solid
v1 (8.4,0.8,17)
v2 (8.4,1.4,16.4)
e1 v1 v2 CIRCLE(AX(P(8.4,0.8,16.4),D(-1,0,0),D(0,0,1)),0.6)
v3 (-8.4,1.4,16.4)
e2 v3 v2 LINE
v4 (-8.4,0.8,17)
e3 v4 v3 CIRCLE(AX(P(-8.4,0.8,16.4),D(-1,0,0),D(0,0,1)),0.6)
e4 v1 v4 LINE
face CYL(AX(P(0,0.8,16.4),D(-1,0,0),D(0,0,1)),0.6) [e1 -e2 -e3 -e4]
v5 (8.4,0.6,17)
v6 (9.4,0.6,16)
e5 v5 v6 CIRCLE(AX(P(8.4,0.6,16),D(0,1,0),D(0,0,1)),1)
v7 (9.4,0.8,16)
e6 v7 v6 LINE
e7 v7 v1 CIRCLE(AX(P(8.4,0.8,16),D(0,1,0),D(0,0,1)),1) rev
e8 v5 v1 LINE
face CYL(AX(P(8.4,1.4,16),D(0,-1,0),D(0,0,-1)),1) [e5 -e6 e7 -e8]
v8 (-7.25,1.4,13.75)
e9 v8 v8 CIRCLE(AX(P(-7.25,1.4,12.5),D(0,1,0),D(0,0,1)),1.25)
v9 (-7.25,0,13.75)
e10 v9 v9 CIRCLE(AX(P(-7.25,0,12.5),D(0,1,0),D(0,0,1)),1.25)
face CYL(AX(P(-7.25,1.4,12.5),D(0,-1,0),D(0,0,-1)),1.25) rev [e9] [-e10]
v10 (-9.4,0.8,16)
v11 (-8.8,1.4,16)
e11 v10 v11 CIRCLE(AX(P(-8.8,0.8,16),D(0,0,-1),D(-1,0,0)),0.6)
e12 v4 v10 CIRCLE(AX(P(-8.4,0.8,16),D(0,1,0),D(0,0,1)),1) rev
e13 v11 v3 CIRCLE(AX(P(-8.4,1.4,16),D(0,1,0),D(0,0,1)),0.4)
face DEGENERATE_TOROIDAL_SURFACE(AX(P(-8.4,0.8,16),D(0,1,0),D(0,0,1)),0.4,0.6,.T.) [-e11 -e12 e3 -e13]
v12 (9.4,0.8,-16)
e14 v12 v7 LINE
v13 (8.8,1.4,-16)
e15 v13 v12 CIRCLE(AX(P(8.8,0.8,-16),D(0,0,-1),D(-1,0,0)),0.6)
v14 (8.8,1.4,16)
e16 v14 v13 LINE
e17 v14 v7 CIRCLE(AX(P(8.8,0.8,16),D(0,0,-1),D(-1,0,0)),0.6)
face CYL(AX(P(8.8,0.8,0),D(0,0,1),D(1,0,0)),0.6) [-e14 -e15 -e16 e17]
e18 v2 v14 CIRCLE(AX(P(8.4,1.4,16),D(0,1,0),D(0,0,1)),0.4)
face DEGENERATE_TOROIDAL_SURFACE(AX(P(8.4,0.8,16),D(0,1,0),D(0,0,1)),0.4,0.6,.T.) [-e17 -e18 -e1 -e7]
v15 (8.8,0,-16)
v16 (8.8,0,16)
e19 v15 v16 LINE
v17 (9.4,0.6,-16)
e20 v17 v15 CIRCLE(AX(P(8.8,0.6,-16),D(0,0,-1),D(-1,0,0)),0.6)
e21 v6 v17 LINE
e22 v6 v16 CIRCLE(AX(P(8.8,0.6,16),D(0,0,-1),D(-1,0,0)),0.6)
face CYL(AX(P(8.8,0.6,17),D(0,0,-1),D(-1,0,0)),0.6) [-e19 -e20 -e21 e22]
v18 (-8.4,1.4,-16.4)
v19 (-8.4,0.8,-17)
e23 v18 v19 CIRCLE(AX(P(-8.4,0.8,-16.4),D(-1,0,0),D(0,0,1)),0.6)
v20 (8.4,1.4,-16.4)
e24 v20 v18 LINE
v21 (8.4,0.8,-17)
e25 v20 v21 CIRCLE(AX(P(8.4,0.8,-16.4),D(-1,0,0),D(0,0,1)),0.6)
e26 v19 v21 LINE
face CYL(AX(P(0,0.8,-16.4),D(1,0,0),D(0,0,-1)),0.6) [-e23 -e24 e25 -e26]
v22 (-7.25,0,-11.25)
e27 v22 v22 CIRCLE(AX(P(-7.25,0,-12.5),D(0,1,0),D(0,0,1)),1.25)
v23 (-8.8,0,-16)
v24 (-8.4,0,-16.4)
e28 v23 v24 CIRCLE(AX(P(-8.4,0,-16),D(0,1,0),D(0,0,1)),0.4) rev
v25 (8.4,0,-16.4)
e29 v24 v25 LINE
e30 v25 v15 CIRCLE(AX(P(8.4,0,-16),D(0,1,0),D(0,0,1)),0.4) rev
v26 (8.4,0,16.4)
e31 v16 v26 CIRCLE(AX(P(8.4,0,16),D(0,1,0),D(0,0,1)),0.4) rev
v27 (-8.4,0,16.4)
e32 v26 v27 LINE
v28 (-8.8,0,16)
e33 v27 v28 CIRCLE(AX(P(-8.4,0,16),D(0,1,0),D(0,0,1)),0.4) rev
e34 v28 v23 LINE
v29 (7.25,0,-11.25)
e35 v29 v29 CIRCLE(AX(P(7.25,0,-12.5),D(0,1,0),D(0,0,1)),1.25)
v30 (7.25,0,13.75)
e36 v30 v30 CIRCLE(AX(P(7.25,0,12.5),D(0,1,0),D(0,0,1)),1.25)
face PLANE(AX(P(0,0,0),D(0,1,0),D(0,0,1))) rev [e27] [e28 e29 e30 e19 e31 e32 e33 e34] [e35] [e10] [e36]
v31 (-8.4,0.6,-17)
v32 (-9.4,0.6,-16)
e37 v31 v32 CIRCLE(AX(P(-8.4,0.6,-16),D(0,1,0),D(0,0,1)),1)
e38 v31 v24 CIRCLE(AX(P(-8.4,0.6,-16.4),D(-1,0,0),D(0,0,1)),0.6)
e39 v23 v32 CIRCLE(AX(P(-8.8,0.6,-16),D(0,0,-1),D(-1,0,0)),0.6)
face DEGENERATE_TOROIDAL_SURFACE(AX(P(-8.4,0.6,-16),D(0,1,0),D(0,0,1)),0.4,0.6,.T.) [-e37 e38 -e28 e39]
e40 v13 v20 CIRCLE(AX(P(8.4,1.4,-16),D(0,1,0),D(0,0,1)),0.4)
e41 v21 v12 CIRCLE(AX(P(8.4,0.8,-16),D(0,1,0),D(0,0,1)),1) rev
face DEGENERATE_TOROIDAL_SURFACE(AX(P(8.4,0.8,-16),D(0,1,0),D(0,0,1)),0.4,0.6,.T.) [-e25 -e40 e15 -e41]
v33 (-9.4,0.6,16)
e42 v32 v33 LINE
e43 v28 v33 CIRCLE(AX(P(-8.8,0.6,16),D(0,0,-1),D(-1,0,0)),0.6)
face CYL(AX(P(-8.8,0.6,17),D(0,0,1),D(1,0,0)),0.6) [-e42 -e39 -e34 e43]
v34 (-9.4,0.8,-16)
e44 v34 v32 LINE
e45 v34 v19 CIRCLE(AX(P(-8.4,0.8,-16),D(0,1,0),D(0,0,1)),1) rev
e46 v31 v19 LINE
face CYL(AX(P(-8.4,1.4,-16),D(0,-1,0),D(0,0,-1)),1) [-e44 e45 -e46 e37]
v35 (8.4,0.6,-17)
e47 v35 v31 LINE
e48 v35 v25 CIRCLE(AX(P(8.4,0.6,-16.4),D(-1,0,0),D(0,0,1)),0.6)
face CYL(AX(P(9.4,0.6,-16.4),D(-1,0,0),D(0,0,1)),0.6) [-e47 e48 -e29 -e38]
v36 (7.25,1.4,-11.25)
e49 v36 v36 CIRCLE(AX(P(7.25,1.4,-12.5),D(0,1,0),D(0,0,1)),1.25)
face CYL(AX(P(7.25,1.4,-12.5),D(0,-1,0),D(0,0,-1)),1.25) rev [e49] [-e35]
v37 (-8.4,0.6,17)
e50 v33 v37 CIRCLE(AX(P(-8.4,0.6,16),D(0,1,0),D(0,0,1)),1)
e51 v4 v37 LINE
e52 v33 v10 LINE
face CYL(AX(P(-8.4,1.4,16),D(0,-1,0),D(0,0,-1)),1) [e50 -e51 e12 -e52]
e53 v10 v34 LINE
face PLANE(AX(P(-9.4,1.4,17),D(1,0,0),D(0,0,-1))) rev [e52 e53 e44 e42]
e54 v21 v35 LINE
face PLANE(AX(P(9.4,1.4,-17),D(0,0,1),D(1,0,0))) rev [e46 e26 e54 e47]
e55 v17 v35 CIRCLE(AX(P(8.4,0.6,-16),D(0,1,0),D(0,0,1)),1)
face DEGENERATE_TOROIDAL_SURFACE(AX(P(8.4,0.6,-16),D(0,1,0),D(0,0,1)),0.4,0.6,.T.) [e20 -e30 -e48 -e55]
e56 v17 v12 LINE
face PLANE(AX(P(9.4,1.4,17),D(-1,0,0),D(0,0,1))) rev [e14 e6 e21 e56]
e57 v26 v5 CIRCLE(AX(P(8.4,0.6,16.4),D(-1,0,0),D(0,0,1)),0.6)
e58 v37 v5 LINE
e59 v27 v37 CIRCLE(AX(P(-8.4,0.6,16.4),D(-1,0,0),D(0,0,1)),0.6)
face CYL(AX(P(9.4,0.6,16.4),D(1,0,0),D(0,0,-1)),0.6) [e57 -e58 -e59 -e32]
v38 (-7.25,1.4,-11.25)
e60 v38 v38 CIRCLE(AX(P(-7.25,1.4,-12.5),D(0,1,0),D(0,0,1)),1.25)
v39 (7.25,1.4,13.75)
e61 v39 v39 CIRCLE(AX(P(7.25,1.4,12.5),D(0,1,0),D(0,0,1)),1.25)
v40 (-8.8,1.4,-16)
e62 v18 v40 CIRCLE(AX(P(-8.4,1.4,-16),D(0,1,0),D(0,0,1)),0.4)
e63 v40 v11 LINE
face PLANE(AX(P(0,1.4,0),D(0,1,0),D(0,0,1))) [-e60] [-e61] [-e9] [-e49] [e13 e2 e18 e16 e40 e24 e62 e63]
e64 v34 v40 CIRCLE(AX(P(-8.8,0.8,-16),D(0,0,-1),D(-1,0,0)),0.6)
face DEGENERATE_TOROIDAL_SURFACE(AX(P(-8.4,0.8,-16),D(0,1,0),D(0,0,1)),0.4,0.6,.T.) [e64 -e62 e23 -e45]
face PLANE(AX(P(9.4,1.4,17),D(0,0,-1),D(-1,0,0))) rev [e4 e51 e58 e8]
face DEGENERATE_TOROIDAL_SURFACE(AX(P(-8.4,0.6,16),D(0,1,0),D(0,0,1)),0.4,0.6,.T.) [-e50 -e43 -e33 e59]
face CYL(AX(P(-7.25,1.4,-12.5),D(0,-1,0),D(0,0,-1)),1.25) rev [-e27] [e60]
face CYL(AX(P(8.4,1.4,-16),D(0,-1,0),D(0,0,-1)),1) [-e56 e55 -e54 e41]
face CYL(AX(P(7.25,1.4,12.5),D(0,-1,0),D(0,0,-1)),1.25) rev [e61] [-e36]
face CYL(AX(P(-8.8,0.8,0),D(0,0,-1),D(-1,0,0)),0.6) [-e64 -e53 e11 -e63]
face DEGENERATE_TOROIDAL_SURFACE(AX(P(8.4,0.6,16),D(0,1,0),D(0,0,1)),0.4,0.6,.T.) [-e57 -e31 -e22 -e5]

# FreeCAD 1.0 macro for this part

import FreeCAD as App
import Part
import Sketcher


def edges_at(feature, points):
    """Names of the edges that pass closest to the given points."""
    edges = feature.Shape.Edges
    near = lambda p: min(range(len(edges)), key=lambda i: edges[i].distToShape(Part.Vertex(*p))[0])
    return sorted({f"Edge{near(p) + 1}" for p in points})


def add_polygon(sketch, points):
    """Adds a closed chain of lines whose ends are joined by coincident constraints."""
    first, n = sketch.GeometryCount, len(points)
    for a, b in zip(points, points[1:] + points[:1]):
        sketch.addGeometry(Part.LineSegment(App.Vector(*a, 0), App.Vector(*b, 0)), False)
    for i in range(n):
        sketch.addConstraint(Sketcher.Constraint("Coincident", first + i, 2, first + (i + 1) % n, 1))

doc = App.newDocument("Part")
body = doc.addObject("PartDesign::Body", "Body")

# Sketch on XZ plane
sketch1 = body.newObject("Sketcher::SketchObject", "Sketch")
sketch1.AttachmentSupport = (doc.getObject("XZ_Plane"), [""])
sketch1.MapMode = "FlatFace"
add_polygon(sketch1, [(-9.4, -17), (-9.4, 17), (9.4, 17), (9.4, -17)])  # lines 0-3
sketch1.addGeometry(Part.Circle(App.Vector(-7.2, 12.5, 0), App.Vector(0, 0, 1), 1.2), False)  # 4
sketch1.addGeometry(Part.Circle(App.Vector(7.2, 12.5, 0), App.Vector(0, 0, 1), 1.2), False)  # 5
sketch1.addGeometry(Part.Circle(App.Vector(-7.2, -12.5, 0), App.Vector(0, 0, 1), 1.2), False)  # 6
sketch1.addGeometry(Part.Circle(App.Vector(7.2, -12.5, 0), App.Vector(0, 0, 1), 1.2), False)  # 7
sketch1.addConstraint(Sketcher.Constraint("Vertical", 0))
sketch1.addConstraint(Sketcher.Constraint("Horizontal", 1))
sketch1.addConstraint(Sketcher.Constraint("Vertical", 2))
sketch1.addConstraint(Sketcher.Constraint("Horizontal", 3))
sketch1.addConstraint(Sketcher.Constraint("Equal", 4, 5))
sketch1.addConstraint(Sketcher.Constraint("Equal", 5, 6))
sketch1.addConstraint(Sketcher.Constraint("Equal", 6, 7))
sketch1.addConstraint(Sketcher.Constraint("Symmetric", 5, 3, 6, 3, -1, 1))
sketch1.addConstraint(Sketcher.Constraint("Symmetric", 4, 3, 7, 3, -1, 1))
sketch1.addConstraint(Sketcher.Constraint("Symmetric", 0, 2, 2, 2, -1, 1))
sketch1.addConstraint(Sketcher.Constraint("Symmetric", 4, 3, 5, 3, -2))
sketch1.addConstraint(Sketcher.Constraint("Diameter", 4, 2.5))
sketch1.addConstraint(Sketcher.Constraint("DistanceY", 0, 1, 0, 2, 34.0))
sketch1.addConstraint(Sketcher.Constraint("DistanceX", 1, 1, 1, 2, 18.8))
sketch1.addConstraint(Sketcher.Constraint("DistanceY", 6, 3, 4, 3, 25.0))
sketch1.addConstraint(Sketcher.Constraint("DistanceX", 4, 3, 5, 3, 14.5))
pad1 = body.newObject("PartDesign::Pad", "Pad")
pad1.Profile = sketch1
pad1.Length = 1.4
pad1.Reversed = True
doc.recompute()

fillet = body.newObject("PartDesign::Fillet", "Fillet")
fillet.Base = (pad1, edges_at(pad1, [
    (-9.4, 0.7, -17),
    (9.4, 0.7, -17),
    (9.4, 0.7, 17),
    (-9.4, 0.7, 17),
]))
fillet.Radius = 1
doc.recompute()

fillet2 = body.newObject("PartDesign::Fillet", "Fillet001")
fillet2.Base = (fillet, edges_at(fillet, [
    (0, 0, 17),
    (0, 1.4, 17),
    (-9.4, 0, 0),
    (0, 0, -17),
    (9.4, 0, 0),
    (-9.107, 0, -16.707),
    (9.107, 0, -16.707),
    (9.107, 0, 16.707),
    (-9.107, 0, 16.707),
    (-9.4, 1.4, 0),
    (9.4, 1.4, 0),
    (0, 1.4, -17),
    (-9.107, 1.4, -16.707),
    (9.107, 1.4, -16.707),
    (9.107, 1.4, 16.707),
    (-9.107, 1.4, 16.707),
]))
fillet2.Radius = 0.6

doc.recompute()
